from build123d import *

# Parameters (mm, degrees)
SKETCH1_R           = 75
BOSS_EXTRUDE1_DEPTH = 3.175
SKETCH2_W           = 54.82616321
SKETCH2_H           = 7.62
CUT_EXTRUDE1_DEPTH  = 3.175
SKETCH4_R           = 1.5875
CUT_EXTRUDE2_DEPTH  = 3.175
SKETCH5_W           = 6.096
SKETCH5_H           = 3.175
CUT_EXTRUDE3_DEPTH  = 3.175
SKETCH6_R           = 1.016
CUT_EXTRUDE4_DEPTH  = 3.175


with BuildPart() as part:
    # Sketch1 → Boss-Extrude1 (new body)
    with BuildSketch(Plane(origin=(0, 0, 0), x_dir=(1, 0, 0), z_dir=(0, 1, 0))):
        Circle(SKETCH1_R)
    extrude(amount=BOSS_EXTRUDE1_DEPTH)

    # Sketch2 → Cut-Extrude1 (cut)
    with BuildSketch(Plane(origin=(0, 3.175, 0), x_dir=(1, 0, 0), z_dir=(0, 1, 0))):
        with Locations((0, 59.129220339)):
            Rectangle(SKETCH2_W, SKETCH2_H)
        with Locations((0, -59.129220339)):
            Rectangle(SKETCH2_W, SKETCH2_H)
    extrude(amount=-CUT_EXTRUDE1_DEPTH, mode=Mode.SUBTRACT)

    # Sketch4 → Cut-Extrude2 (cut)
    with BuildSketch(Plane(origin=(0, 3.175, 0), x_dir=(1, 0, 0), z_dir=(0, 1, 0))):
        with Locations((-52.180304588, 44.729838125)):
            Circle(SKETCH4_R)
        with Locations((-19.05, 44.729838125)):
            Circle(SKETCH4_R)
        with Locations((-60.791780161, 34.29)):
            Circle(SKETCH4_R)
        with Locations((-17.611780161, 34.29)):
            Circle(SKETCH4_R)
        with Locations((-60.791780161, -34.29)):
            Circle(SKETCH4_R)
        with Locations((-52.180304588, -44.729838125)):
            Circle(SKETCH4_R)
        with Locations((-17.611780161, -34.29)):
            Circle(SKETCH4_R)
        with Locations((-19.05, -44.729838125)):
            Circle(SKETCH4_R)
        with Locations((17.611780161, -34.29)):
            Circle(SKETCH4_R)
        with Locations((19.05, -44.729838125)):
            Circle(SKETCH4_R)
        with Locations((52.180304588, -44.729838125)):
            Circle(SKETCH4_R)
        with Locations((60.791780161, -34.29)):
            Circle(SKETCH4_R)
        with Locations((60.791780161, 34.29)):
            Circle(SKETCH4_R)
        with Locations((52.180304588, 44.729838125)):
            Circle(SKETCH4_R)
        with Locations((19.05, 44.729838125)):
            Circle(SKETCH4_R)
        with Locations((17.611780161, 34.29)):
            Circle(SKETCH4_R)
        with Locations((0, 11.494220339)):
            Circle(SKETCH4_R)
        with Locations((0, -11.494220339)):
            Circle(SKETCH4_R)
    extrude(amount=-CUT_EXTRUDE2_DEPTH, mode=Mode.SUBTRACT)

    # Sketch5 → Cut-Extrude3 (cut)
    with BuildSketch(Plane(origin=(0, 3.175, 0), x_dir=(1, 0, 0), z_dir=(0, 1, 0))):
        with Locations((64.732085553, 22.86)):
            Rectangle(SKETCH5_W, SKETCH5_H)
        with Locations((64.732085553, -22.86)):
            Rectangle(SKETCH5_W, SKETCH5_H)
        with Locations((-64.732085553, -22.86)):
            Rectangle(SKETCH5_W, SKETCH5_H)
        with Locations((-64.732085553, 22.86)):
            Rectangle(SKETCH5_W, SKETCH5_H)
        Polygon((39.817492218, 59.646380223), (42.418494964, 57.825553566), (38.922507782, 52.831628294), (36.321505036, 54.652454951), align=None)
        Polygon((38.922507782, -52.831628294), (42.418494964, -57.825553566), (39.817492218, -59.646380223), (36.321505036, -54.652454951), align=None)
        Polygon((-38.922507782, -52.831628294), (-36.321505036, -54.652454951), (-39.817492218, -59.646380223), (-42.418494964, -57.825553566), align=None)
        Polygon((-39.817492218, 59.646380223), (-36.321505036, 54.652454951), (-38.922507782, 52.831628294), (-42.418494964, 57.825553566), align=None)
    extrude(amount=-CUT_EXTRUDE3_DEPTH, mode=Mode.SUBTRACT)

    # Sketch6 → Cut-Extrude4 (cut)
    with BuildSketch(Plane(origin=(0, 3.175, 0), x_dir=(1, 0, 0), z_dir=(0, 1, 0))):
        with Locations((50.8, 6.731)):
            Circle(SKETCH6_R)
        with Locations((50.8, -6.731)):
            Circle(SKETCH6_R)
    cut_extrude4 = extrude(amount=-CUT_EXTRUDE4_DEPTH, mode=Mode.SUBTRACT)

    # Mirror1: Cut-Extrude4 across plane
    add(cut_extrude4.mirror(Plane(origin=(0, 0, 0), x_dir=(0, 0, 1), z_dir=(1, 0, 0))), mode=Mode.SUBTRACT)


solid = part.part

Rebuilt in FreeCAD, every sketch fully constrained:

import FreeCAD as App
import Part
import Sketcher

V = App.Vector
Q = App.Units.Quantity

doc = App.newDocument("Part")
body = doc.addObject("PartDesign::Body", "Body")

# Sketch on XZ plane
sketch1 = body.newObject("Sketcher::SketchObject", "Sketch")
sketch1.AttachmentSupport = (doc.getObject("XZ_Plane"), [""])
sketch1.MapMode = "FlatFace"
sketch1.addGeometry(Part.Circle(V(0, 0, 0), V(0, 0, 1), 75), False)
sketch1.addConstraint(Sketcher.Constraint("Coincident", 0, 3, -1, 1))
sketch1.addConstraint(Sketcher.Constraint("Diameter", 0, Q("150 mm")))
pad1 = body.newObject("PartDesign::Pad", "Pad")
pad1.Profile = sketch1
pad1.Length = Q("0.125 in")
pad1.Reversed = True

# Sketch on XZ plane
sketch2 = body.newObject("Sketcher::SketchObject", "Sketch001")
sketch2.AttachmentSupport = (doc.getObject("XZ_Plane"), [""])
sketch2.MapMode = "FlatFace"
sketch2.AttachmentOffset = App.Placement(V(0, 0, -0.125 * 25.4), App.Rotation())
sketch2.addGeometry(Part.LineSegment(V(-27.413082, -62.93922, 0), V(-27.413082, -55.31922, 0)), False)
sketch2.addGeometry(Part.LineSegment(V(-27.413082, -55.31922, 0), V(27.413082, -55.31922, 0)), False)
sketch2.addGeometry(Part.LineSegment(V(27.413082, -55.31922, 0), V(27.413082, -62.93922, 0)), False)
sketch2.addGeometry(Part.LineSegment(V(27.413082, -62.93922, 0), V(-27.413082, -62.93922, 0)), False)
sketch2.addGeometry(Part.LineSegment(V(-27.413082, 55.31922, 0), V(-27.413082, 62.93922, 0)), False)
sketch2.addGeometry(Part.LineSegment(V(-27.413082, 62.93922, 0), V(27.413082, 62.93922, 0)), False)
sketch2.addGeometry(Part.LineSegment(V(27.413082, 62.93922, 0), V(27.413082, 55.31922, 0)), False)
sketch2.addGeometry(Part.LineSegment(V(27.413082, 55.31922, 0), V(-27.413082, 55.31922, 0)), False)
sketch2.addConstraint(Sketcher.Constraint("Coincident", 0, 2, 1, 1))
sketch2.addConstraint(Sketcher.Constraint("Coincident", 1, 2, 2, 1))
sketch2.addConstraint(Sketcher.Constraint("Coincident", 2, 2, 3, 1))
sketch2.addConstraint(Sketcher.Constraint("Coincident", 3, 2, 0, 1))
sketch2.addConstraint(Sketcher.Constraint("Coincident", 4, 2, 5, 1))
sketch2.addConstraint(Sketcher.Constraint("Coincident", 5, 2, 6, 1))
sketch2.addConstraint(Sketcher.Constraint("Coincident", 6, 2, 7, 1))
sketch2.addConstraint(Sketcher.Constraint("Coincident", 7, 2, 4, 1))
sketch2.addConstraint(Sketcher.Constraint("Vertical", 0))
sketch2.addConstraint(Sketcher.Constraint("Horizontal", 1))
sketch2.addConstraint(Sketcher.Constraint("Vertical", 2))
sketch2.addConstraint(Sketcher.Constraint("Horizontal", 3))
sketch2.addConstraint(Sketcher.Constraint("Vertical", 4))
sketch2.addConstraint(Sketcher.Constraint("Horizontal", 5))
sketch2.addConstraint(Sketcher.Constraint("Vertical", 6))
sketch2.addConstraint(Sketcher.Constraint("Horizontal", 7))
sketch2.addConstraint(Sketcher.Constraint("Symmetric", 2, 2, 4, 2, -1, 1))
sketch2.addConstraint(Sketcher.Constraint("Symmetric", 0, 2, 6, 2, -1, 1))
sketch2.addConstraint(Sketcher.Constraint("Vertical", 3, 2, 4, 2))
sketch2.addConstraint(Sketcher.Constraint("DistanceY", 0, 1, 0, 2, Q("0.3 in")))
sketch2.addConstraint(Sketcher.Constraint("DistanceX", 1, 1, 1, 2, Q("54.826163 mm")))
sketch2.addConstraint(Sketcher.Constraint("DistanceY", 0, 2, -1, 1, Q("55.31922 mm")))
pocket1 = body.newObject("PartDesign::Pocket", "Pocket")
pocket1.Profile = sketch2
pocket1.Length = Q("0.125 in")
pocket1.Reversed = True

# Sketch on XZ plane
sketch3 = body.newObject("Sketcher::SketchObject", "Sketch002")
sketch3.AttachmentSupport = (doc.getObject("XZ_Plane"), [""])
sketch3.MapMode = "FlatFace"
sketch3.AttachmentOffset = App.Placement(V(0, 0, -0.125 * 25.4), App.Rotation())
sketch3.addGeometry(Part.Circle(V(-52.180305, -44.729838, 0), V(0, 0, 1), 1.5875), False)
sketch3.addGeometry(Part.Circle(V(-19.05, -44.729838, 0), V(0, 0, 1), 1.5875), False)
sketch3.addGeometry(Part.Circle(V(-60.79178, -34.29, 0), V(0, 0, 1), 1.5875), False)
sketch3.addGeometry(Part.Circle(V(-17.61178, -34.29, 0), V(0, 0, 1), 1.5875), False)
sketch3.addGeometry(Part.Circle(V(-60.79178, 34.29, 0), V(0, 0, 1), 1.5875), False)
sketch3.addGeometry(Part.Circle(V(-52.180305, 44.729838, 0), V(0, 0, 1), 1.5875), False)
sketch3.addGeometry(Part.Circle(V(-17.61178, 34.29, 0), V(0, 0, 1), 1.5875), False)
sketch3.addGeometry(Part.Circle(V(-19.05, 44.729838, 0), V(0, 0, 1), 1.5875), False)
sketch3.addGeometry(Part.Circle(V(17.61178, 34.29, 0), V(0, 0, 1), 1.5875), False)
sketch3.addGeometry(Part.Circle(V(19.05, 44.729838, 0), V(0, 0, 1), 1.5875), False)
sketch3.addGeometry(Part.Circle(V(52.180305, 44.729838, 0), V(0, 0, 1), 1.5875), False)
sketch3.addGeometry(Part.Circle(V(60.79178, 34.29, 0), V(0, 0, 1), 1.5875), False)
sketch3.addGeometry(Part.Circle(V(60.79178, -34.29, 0), V(0, 0, 1), 1.5875), False)
sketch3.addGeometry(Part.Circle(V(52.180305, -44.729838, 0), V(0, 0, 1), 1.5875), False)
sketch3.addGeometry(Part.Circle(V(19.05, -44.729838, 0), V(0, 0, 1), 1.5875), False)
sketch3.addGeometry(Part.Circle(V(17.61178, -34.29, 0), V(0, 0, 1), 1.5875), False)
sketch3.addGeometry(Part.Circle(V(0, -11.49422, 0), V(0, 0, 1), 1.5875), False)
sketch3.addGeometry(Part.Circle(V(0, 11.49422, 0), V(0, 0, 1), 1.5875), False)
sketch3.addConstraint(Sketcher.Constraint("Equal", 0, 1))
sketch3.addConstraint(Sketcher.Constraint("Equal", 1, 2))
sketch3.addConstraint(Sketcher.Constraint("Equal", 2, 3))
sketch3.addConstraint(Sketcher.Constraint("Equal", 3, 4))
sketch3.addConstraint(Sketcher.Constraint("Equal", 4, 5))
sketch3.addConstraint(Sketcher.Constraint("Equal", 5, 6))
sketch3.addConstraint(Sketcher.Constraint("Equal", 6, 7))
sketch3.addConstraint(Sketcher.Constraint("Equal", 7, 8))
sketch3.addConstraint(Sketcher.Constraint("Equal", 8, 9))
sketch3.addConstraint(Sketcher.Constraint("Equal", 9, 10))
sketch3.addConstraint(Sketcher.Constraint("Equal", 10, 11))
sketch3.addConstraint(Sketcher.Constraint("Equal", 11, 12))
sketch3.addConstraint(Sketcher.Constraint("Equal", 12, 13))
sketch3.addConstraint(Sketcher.Constraint("Equal", 13, 14))
sketch3.addConstraint(Sketcher.Constraint("Equal", 14, 15))
sketch3.addConstraint(Sketcher.Constraint("Equal", 15, 16))
sketch3.addConstraint(Sketcher.Constraint("Equal", 16, 17))
sketch3.addConstraint(Sketcher.Constraint("Symmetric", 3, 3, 8, 3, -1, 1))
sketch3.addConstraint(Sketcher.Constraint("Symmetric", 1, 3, 9, 3, -1, 1))
sketch3.addConstraint(Sketcher.Constraint("Symmetric", 0, 3, 10, 3, -1, 1))
sketch3.addConstraint(Sketcher.Constraint("Symmetric", 2, 3, 11, 3, -1, 1))
sketch3.addConstraint(Sketcher.Constraint("Symmetric", 4, 3, 12, 3, -1, 1))
sketch3.addConstraint(Sketcher.Constraint("Symmetric", 5, 3, 13, 3, -1, 1))
sketch3.addConstraint(Sketcher.Constraint("Symmetric", 7, 3, 14, 3, -1, 1))
sketch3.addConstraint(Sketcher.Constraint("Symmetric", 6, 3, 15, 3, -1, 1))
sketch3.addConstraint(Sketcher.Constraint("Symmetric", 16, 3, 17, 3, -1, 1))
sketch3.addConstraint(Sketcher.Constraint("Symmetric", 6, 3, 8, 3, -2))
sketch3.addConstraint(Sketcher.Constraint("Symmetric", 7, 3, 9, 3, -2))
sketch3.addConstraint(Sketcher.Constraint("Symmetric", 5, 3, 10, 3, -2))
sketch3.addConstraint(Sketcher.Constraint("Symmetric", 4, 3, 11, 3, -2))
sketch3.addConstraint(Sketcher.Constraint("PointOnObject", 16, 3, -2))
sketch3.addConstraint(Sketcher.Constraint("Horizontal", 0, 3, 1, 3))
sketch3.addConstraint(Sketcher.Constraint("Horizontal", 2, 3, 3, 3))
sketch3.addConstraint(Sketcher.Constraint("Diameter", 0, Q("0.125 in")))
sketch3.addConstraint(Sketcher.Constraint("DistanceX", 2, 3, 3, 3, Q("1.7 in")))
sketch3.addConstraint(Sketcher.Constraint("DistanceY", 2, 3, 4, 3, Q("2.7 in")))
sketch3.addConstraint(Sketcher.Constraint("DistanceX", 7, 3, 9, 3, Q("1.5 in")))
sketch3.addConstraint(Sketcher.Constraint("DistanceY", 0, 3, -1, 1, Q("44.729838 mm")))
sketch3.addConstraint(Sketcher.Constraint("DistanceX", 2, 3, -1, 1, Q("60.79178 mm")))
sketch3.addConstraint(Sketcher.Constraint("DistanceY", 16, 3, -1, 1, Q("11.49422 mm")))
sketch3.addConstraint(Sketcher.Constraint("DistanceX", 5, 3, 10, 3, Q("104.360609 mm")))
pocket2 = body.newObject("PartDesign::Pocket", "Pocket001")
pocket2.Profile = sketch3
pocket2.Length = Q("0.125 in")
pocket2.Reversed = True

# Sketch on XZ plane
sketch4 = body.newObject("Sketcher::SketchObject", "Sketch003")
sketch4.AttachmentSupport = (doc.getObject("XZ_Plane"), [""])
sketch4.MapMode = "FlatFace"
sketch4.AttachmentOffset = App.Placement(V(0, 0, -0.125 * 25.4), App.Rotation())
sketch4.addGeometry(Part.LineSegment(V(61.684086, -24.4475, 0), V(61.684086, -21.2725, 0)), False)
sketch4.addGeometry(Part.LineSegment(V(61.684086, -21.2725, 0), V(67.780086, -21.2725, 0)), False)
sketch4.addGeometry(Part.LineSegment(V(67.780086, -21.2725, 0), V(67.780086, -24.4475, 0)), False)
sketch4.addGeometry(Part.LineSegment(V(67.780086, -24.4475, 0), V(61.684086, -24.4475, 0)), False)
sketch4.addGeometry(Part.LineSegment(V(61.684086, 21.2725, 0), V(61.684086, 24.4475, 0)), False)
sketch4.addGeometry(Part.LineSegment(V(61.684086, 24.4475, 0), V(67.780086, 24.4475, 0)), False)
sketch4.addGeometry(Part.LineSegment(V(67.780086, 24.4475, 0), V(67.780086, 21.2725, 0)), False)
sketch4.addGeometry(Part.LineSegment(V(67.780086, 21.2725, 0), V(61.684086, 21.2725, 0)), False)
sketch4.addGeometry(Part.LineSegment(V(-67.780086, 21.2725, 0), V(-67.780086, 24.4475, 0)), False)
sketch4.addGeometry(Part.LineSegment(V(-67.780086, 24.4475, 0), V(-61.684086, 24.4475, 0)), False)
sketch4.addGeometry(Part.LineSegment(V(-61.684086, 24.4475, 0), V(-61.684086, 21.2725, 0)), False)
sketch4.addGeometry(Part.LineSegment(V(-61.684086, 21.2725, 0), V(-67.780086, 21.2725, 0)), False)
sketch4.addGeometry(Part.LineSegment(V(-67.780086, -24.4475, 0), V(-67.780086, -21.2725, 0)), False)
sketch4.addGeometry(Part.LineSegment(V(-67.780086, -21.2725, 0), V(-61.684086, -21.2725, 0)), False)
sketch4.addGeometry(Part.LineSegment(V(-61.684086, -21.2725, 0), V(-61.684086, -24.4475, 0)), False)
sketch4.addGeometry(Part.LineSegment(V(-61.684086, -24.4475, 0), V(-67.780086, -24.4475, 0)), False)
sketch4.addGeometry(Part.LineSegment(V(42.418495, -57.825554, 0), V(39.817492, -59.64638, 0)), False)
sketch4.addGeometry(Part.LineSegment(V(39.817492, -59.64638, 0), V(36.321505, -54.652455, 0)), False)
sketch4.addGeometry(Part.LineSegment(V(36.321505, -54.652455, 0), V(38.922508, -52.831628, 0)), False)
sketch4.addGeometry(Part.LineSegment(V(38.922508, -52.831628, 0), V(42.418495, -57.825554, 0)), False)
sketch4.addGeometry(Part.LineSegment(V(42.418495, 57.825554, 0), V(38.922508, 52.831628, 0)), False)
sketch4.addGeometry(Part.LineSegment(V(38.922508, 52.831628, 0), V(36.321505, 54.652455, 0)), False)
sketch4.addGeometry(Part.LineSegment(V(36.321505, 54.652455, 0), V(39.817492, 59.64638, 0)), False)
sketch4.addGeometry(Part.LineSegment(V(39.817492, 59.64638, 0), V(42.418495, 57.825554, 0)), False)
sketch4.addGeometry(Part.LineSegment(V(-36.321505, 54.652455, 0), V(-38.922508, 52.831628, 0)), False)
sketch4.addGeometry(Part.LineSegment(V(-38.922508, 52.831628, 0), V(-42.418495, 57.825554, 0)), False)
sketch4.addGeometry(Part.LineSegment(V(-42.418495, 57.825554, 0), V(-39.817492, 59.64638, 0)), False)
sketch4.addGeometry(Part.LineSegment(V(-39.817492, 59.64638, 0), V(-36.321505, 54.652455, 0)), False)
sketch4.addGeometry(Part.LineSegment(V(-36.321505, -54.652455, 0), V(-39.817492, -59.64638, 0)), False)
sketch4.addGeometry(Part.LineSegment(V(-39.817492, -59.64638, 0), V(-42.418495, -57.825554, 0)), False)
sketch4.addGeometry(Part.LineSegment(V(-42.418495, -57.825554, 0), V(-38.922508, -52.831628, 0)), False)
sketch4.addGeometry(Part.LineSegment(V(-38.922508, -52.831628, 0), V(-36.321505, -54.652455, 0)), False)
sketch4.addConstraint(Sketcher.Constraint("Coincident", 0, 2, 1, 1))
sketch4.addConstraint(Sketcher.Constraint("Coincident", 1, 2, 2, 1))
sketch4.addConstraint(Sketcher.Constraint("Coincident", 2, 2, 3, 1))
sketch4.addConstraint(Sketcher.Constraint("Coincident", 3, 2, 0, 1))
sketch4.addConstraint(Sketcher.Constraint("Coincident", 4, 2, 5, 1))
sketch4.addConstraint(Sketcher.Constraint("Coincident", 5, 2, 6, 1))
sketch4.addConstraint(Sketcher.Constraint("Coincident", 6, 2, 7, 1))
sketch4.addConstraint(Sketcher.Constraint("Coincident", 7, 2, 4, 1))
sketch4.addConstraint(Sketcher.Constraint("Coincident", 8, 2, 9, 1))
sketch4.addConstraint(Sketcher.Constraint("Coincident", 9, 2, 10, 1))
sketch4.addConstraint(Sketcher.Constraint("Coincident", 10, 2, 11, 1))
sketch4.addConstraint(Sketcher.Constraint("Coincident", 11, 2, 8, 1))
sketch4.addConstraint(Sketcher.Constraint("Coincident", 12, 2, 13, 1))
sketch4.addConstraint(Sketcher.Constraint("Coincident", 13, 2, 14, 1))
sketch4.addConstraint(Sketcher.Constraint("Coincident", 14, 2, 15, 1))
sketch4.addConstraint(Sketcher.Constraint("Coincident", 15, 2, 12, 1))
sketch4.addConstraint(Sketcher.Constraint("Coincident", 16, 2, 17, 1))
sketch4.addConstraint(Sketcher.Constraint("Coincident", 17, 2, 18, 1))
sketch4.addConstraint(Sketcher.Constraint("Coincident", 18, 2, 19, 1))
sketch4.addConstraint(Sketcher.Constraint("Coincident", 19, 2, 16, 1))
sketch4.addConstraint(Sketcher.Constraint("Coincident", 20, 2, 21, 1))
sketch4.addConstraint(Sketcher.Constraint("Coincident", 21, 2, 22, 1))
sketch4.addConstraint(Sketcher.Constraint("Coincident", 22, 2, 23, 1))
sketch4.addConstraint(Sketcher.Constraint("Coincident", 23, 2, 20, 1))
sketch4.addConstraint(Sketcher.Constraint("Coincident", 24, 2, 25, 1))
sketch4.addConstraint(Sketcher.Constraint("Coincident", 25, 2, 26, 1))
sketch4.addConstraint(Sketcher.Constraint("Coincident", 26, 2, 27, 1))
sketch4.addConstraint(Sketcher.Constraint("Coincident", 27, 2, 24, 1))
sketch4.addConstraint(Sketcher.Constraint("Coincident", 28, 2, 29, 1))
sketch4.addConstraint(Sketcher.Constraint("Coincident", 29, 2, 30, 1))
sketch4.addConstraint(Sketcher.Constraint("Coincident", 30, 2, 31, 1))
sketch4.addConstraint(Sketcher.Constraint("Coincident", 31, 2, 28, 1))
sketch4.addConstraint(Sketcher.Constraint("Vertical", 0))
sketch4.addConstraint(Sketcher.Constraint("Horizontal", 1))
sketch4.addConstraint(Sketcher.Constraint("Vertical", 2))
sketch4.addConstraint(Sketcher.Constraint("Horizontal", 3))
sketch4.addConstraint(Sketcher.Constraint("Vertical", 4))
sketch4.addConstraint(Sketcher.Constraint("Horizontal", 5))
sketch4.addConstraint(Sketcher.Constraint("Vertical", 6))
sketch4.addConstraint(Sketcher.Constraint("Horizontal", 7))
sketch4.addConstraint(Sketcher.Constraint("Vertical", 8))
sketch4.addConstraint(Sketcher.Constraint("Horizontal", 9))
sketch4.addConstraint(Sketcher.Constraint("Vertical", 10))
sketch4.addConstraint(Sketcher.Constraint("Horizontal", 11))
sketch4.addConstraint(Sketcher.Constraint("Vertical", 12))
sketch4.addConstraint(Sketcher.Constraint("Horizontal", 13))
sketch4.addConstraint(Sketcher.Constraint("Vertical", 14))
sketch4.addConstraint(Sketcher.Constraint("Horizontal", 15))
sketch4.addConstraint(Sketcher.Constraint("Symmetric", 2, 2, 8, 2, -1, 1))
sketch4.addConstraint(Sketcher.Constraint("Symmetric", 0, 2, 10, 2, -1, 1))
sketch4.addConstraint(Sketcher.Constraint("Symmetric", 6, 2, 12, 2, -1, 1))
sketch4.addConstraint(Sketcher.Constraint("Symmetric", 4, 2, 14, 2, -1, 1))
sketch4.addConstraint(Sketcher.Constraint("Symmetric", 18, 2, 24, 2, -1, 1))
sketch4.addConstraint(Sketcher.Constraint("Symmetric", 19, 2, 25, 2, -1, 1))
sketch4.addConstraint(Sketcher.Constraint("Symmetric", 16, 2, 26, 2, -1, 1))
sketch4.addConstraint(Sketcher.Constraint("Symmetric", 17, 2, 27, 2, -1, 1))
sketch4.addConstraint(Sketcher.Constraint("Symmetric", 22, 2, 28, 2, -1, 1))
sketch4.addConstraint(Sketcher.Constraint("Symmetric", 23, 2, 29, 2, -1, 1))
sketch4.addConstraint(Sketcher.Constraint("Symmetric", 20, 2, 30, 2, -1, 1))
sketch4.addConstraint(Sketcher.Constraint("Symmetric", 21, 2, 31, 2, -1, 1))
sketch4.addConstraint(Sketcher.Constraint("Symmetric", 5, 2, 8, 2, -2))
sketch4.addConstraint(Sketcher.Constraint("Symmetric", 7, 2, 10, 2, -2))
sketch4.addConstraint(Sketcher.Constraint("Symmetric", 20, 2, 24, 2, -2))
sketch4.addConstraint(Sketcher.Constraint("Symmetric", 23, 2, 25, 2, -2))
sketch4.addConstraint(Sketcher.Constraint("Symmetric", 22, 2, 26, 2, -2))
sketch4.addConstraint(Sketcher.Constraint("Symmetric", 21, 2, 27, 2, -2))
sketch4.addConstraint(Sketcher.Constraint("Perpendicular", 16, 17))
sketch4.addConstraint(Sketcher.Constraint("Perpendicular", 17, 18))
sketch4.addConstraint(Sketcher.Constraint("Perpendicular", 18, 19))
sketch4.addConstraint(Sketcher.Constraint("DistanceX", 1, 1, 1, 2, Q("0.24 in")))
sketch4.addConstraint(Sketcher.Constraint("DistanceY", 0, 2, 4, 2, Q("1.8 in")))
sketch4.addConstraint(Sketcher.Constraint("Distance", 17, Q("0.24 in")))
sketch4.addConstraint(Sketcher.Constraint("DistanceY", 0, 1, 0, 2, Q("0.125 in")))
sketch4.addConstraint(Sketcher.Constraint("Distance", 16, Q("0.125 in")))
sketch4.addConstraint(Sketcher.Constraint("DistanceY", 19, 2, 17, 2, Q("3.173099 mm")))
sketch4.addConstraint(Sketcher.Constraint("DistanceY", 16, 2, -1, 1, Q("59.64638 mm")))
sketch4.addConstraint(Sketcher.Constraint("DistanceX", 8, 2, 4, 2, Q("129.464171 mm")))
sketch4.addConstraint(Sketcher.Constraint("DistanceX", 17, 2, 3, 2, Q("25.362581 mm")))
pocket3 = body.newObject("PartDesign::Pocket", "Pocket002")
pocket3.Profile = sketch4
pocket3.Length = Q("0.125 in")
pocket3.Reversed = True

# Sketch on XZ plane
sketch5 = body.newObject("Sketcher::SketchObject", "Sketch004")
sketch5.AttachmentSupport = (doc.getObject("XZ_Plane"), [""])
sketch5.MapMode = "FlatFace"
sketch5.AttachmentOffset = App.Placement(V(0, 0, -0.125 * 25.4), App.Rotation())
sketch5.addGeometry(Part.Circle(V(50.8, -6.731, 0), V(0, 0, 1), 1.016), False)
sketch5.addGeometry(Part.Circle(V(50.8, 6.731, 0), V(0, 0, 1), 1.016), False)
sketch5.addConstraint(Sketcher.Constraint("Equal", 0, 1))
sketch5.addConstraint(Sketcher.Constraint("Symmetric", 0, 3, 1, 3, -1))
sketch5.addConstraint(Sketcher.Constraint("Diameter", 0, Q("0.08 in")))
sketch5.addConstraint(Sketcher.Constraint("DistanceX", -1, 1, 0, 3, Q("2 in")))
sketch5.addConstraint(Sketcher.Constraint("DistanceY", 0, 3, 1, 3, Q("0.53 in")))
pocket4 = body.newObject("PartDesign::Pocket", "Pocket003")
pocket4.Profile = sketch5
pocket4.Length = Q("0.125 in")
pocket4.Reversed = True
doc.recompute()

mirrored = body.newObject("PartDesign::Mirrored", "Mirrored")
mirrored.Originals = [pocket4]
mirrored.MirrorPlane = (doc.getObject("YZ_Plane"), [""])
body.Tip = mirrored

doc.recompute()
